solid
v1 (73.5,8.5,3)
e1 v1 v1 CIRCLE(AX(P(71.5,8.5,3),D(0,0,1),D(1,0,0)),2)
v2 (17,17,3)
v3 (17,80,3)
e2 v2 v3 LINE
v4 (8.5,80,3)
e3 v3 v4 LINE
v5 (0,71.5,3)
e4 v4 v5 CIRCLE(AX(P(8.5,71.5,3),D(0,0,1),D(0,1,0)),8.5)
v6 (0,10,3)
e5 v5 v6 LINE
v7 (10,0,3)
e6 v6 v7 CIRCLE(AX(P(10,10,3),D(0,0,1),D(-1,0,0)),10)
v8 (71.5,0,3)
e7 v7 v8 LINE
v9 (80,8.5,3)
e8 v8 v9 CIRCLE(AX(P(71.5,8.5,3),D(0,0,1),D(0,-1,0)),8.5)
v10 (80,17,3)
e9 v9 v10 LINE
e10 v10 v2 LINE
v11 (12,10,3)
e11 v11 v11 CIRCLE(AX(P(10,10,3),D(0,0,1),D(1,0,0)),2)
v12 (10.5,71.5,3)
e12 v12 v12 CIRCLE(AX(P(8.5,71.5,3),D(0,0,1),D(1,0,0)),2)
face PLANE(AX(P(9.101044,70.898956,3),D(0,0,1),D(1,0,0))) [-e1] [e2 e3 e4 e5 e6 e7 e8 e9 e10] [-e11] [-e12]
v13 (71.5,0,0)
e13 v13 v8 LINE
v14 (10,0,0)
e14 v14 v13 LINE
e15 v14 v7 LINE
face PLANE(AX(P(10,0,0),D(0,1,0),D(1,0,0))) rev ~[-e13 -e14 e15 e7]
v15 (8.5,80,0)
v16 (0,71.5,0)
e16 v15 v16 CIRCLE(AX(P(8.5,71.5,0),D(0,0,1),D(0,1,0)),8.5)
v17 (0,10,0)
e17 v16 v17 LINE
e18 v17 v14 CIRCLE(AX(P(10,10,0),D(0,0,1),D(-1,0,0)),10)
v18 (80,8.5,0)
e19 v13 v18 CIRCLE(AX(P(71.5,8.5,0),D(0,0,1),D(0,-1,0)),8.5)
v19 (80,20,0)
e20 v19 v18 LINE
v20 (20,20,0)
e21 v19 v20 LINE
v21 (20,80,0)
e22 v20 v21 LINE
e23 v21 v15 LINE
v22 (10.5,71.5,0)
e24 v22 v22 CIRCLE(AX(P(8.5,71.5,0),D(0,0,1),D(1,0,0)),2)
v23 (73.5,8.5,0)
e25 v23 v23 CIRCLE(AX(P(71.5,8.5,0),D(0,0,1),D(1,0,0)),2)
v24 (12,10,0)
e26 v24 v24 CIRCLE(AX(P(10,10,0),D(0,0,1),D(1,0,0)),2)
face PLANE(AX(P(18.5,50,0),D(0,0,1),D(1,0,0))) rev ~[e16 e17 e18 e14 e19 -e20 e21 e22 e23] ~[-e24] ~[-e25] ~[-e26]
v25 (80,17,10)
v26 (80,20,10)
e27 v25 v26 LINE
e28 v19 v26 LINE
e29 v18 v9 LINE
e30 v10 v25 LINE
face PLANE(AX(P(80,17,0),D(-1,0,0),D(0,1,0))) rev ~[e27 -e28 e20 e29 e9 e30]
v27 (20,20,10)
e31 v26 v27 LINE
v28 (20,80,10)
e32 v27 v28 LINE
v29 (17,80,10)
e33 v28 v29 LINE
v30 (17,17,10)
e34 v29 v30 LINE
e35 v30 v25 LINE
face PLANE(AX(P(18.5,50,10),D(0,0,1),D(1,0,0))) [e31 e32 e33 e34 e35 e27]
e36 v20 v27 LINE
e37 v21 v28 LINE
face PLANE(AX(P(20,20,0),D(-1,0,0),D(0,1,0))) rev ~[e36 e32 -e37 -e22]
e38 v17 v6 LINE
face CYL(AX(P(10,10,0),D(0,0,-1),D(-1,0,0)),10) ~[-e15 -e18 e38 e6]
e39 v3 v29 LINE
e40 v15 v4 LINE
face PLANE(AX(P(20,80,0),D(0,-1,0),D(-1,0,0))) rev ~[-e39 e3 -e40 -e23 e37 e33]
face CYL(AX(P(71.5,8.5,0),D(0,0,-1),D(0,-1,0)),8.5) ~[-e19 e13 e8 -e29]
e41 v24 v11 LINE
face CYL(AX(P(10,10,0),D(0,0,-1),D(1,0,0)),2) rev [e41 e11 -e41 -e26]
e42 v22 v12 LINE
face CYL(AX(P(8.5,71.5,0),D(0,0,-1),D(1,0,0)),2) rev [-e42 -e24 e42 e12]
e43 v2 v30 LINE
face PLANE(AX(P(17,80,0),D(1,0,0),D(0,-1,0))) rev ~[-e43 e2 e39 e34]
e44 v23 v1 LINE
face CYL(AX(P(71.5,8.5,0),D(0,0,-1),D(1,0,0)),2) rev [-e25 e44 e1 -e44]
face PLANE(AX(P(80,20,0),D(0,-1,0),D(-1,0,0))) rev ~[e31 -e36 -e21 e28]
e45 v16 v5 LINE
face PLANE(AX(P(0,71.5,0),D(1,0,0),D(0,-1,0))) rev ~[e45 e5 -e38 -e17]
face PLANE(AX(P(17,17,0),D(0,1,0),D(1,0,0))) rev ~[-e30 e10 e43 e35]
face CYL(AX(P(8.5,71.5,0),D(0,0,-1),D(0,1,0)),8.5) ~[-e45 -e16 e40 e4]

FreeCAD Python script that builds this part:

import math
import FreeCAD as App
import Part
import Sketcher

doc = App.newDocument("Part")
body = doc.addObject("PartDesign::Body", "Body")

# Sketch on XY plane
sketch1 = doc.addObject("Sketcher::SketchObject", "Sketch")
body.addObject(sketch1)
sketch1.AttachmentSupport = (doc.XY_Plane, [""])
sketch1.MapMode = "FlatFace"
sketch1.addGeometry([
    Part.LineSegment(App.Vector(0, 71.5, 0), App.Vector(0, 10, 0)),  # 0
    Part.ArcOfCircle(Part.Circle(App.Vector(10, 10, 0), App.Vector(0, 0, 1), 10), math.radians(180), math.radians(270)),  # 1
    Part.LineSegment(App.Vector(10, 0, 0), App.Vector(71.5, 0, 0)),  # 2
    Part.ArcOfCircle(Part.Circle(App.Vector(71.5, 8.5, 0), App.Vector(0, 0, 1), 8.5), math.radians(-90), math.radians(0)),  # 3
    Part.LineSegment(App.Vector(80, 8.5, 0), App.Vector(80, 17, 0)),  # 4
    Part.LineSegment(App.Vector(80, 17, 0), App.Vector(17, 17, 0)),  # 5
    Part.LineSegment(App.Vector(17, 17, 0), App.Vector(17, 80, 0)),  # 6
    Part.LineSegment(App.Vector(17, 80, 0), App.Vector(8.5, 80, 0)),  # 7
    Part.ArcOfCircle(Part.Circle(App.Vector(8.5, 71.5, 0), App.Vector(0, 0, 1), 8.5), math.radians(90), math.radians(180)),  # 8
    Part.Circle(App.Vector(10, 10, 0), App.Vector(0, 0, 1), 2),  # 9
    Part.Circle(App.Vector(71.5, 8.5, 0), App.Vector(0, 0, 1), 2),  # 10
    Part.Circle(App.Vector(8.5, 71.5, 0), App.Vector(0, 0, 1), 2),  # 11
], False)
sketch1.addConstraint([
    Sketcher.Constraint("Tangent", 0, 2, 1, 1),
    Sketcher.Constraint("Tangent", 1, 2, 2, 1),
    Sketcher.Constraint("Tangent", 2, 2, 3, 1),
    Sketcher.Constraint("Tangent", 3, 2, 4, 1),
    Sketcher.Constraint("Coincident", 4, 2, 5, 1),
    Sketcher.Constraint("Coincident", 5, 2, 6, 1),
    Sketcher.Constraint("Coincident", 6, 2, 7, 1),
    Sketcher.Constraint("Tangent", 7, 2, 8, 1),
    Sketcher.Constraint("Tangent", 8, 2, 0, 1),
    Sketcher.Constraint("Vertical", 0),
    Sketcher.Constraint("Horizontal", 2),
    Sketcher.Constraint("Vertical", 4),
    Sketcher.Constraint("Horizontal", 5),
    Sketcher.Constraint("Vertical", 6),
    Sketcher.Constraint("Horizontal", 7),
    Sketcher.Constraint("Coincident", 9, 3, 1, 3),
    Sketcher.Constraint("Coincident", 10, 3, 3, 3),
    Sketcher.Constraint("Coincident", 11, 3, 8, 3),
    Sketcher.Constraint("Equal", 3, 8),
    Sketcher.Constraint("Equal", 9, 10),
    Sketcher.Constraint("Equal", 10, 11),
    Sketcher.Constraint("PointOnObject", 0, 2, -2),
    Sketcher.Constraint("PointOnObject", 1, 2, -1),
    Sketcher.Constraint("Equal", 2, 0),
    Sketcher.Constraint("Equal", 7, 4),
    Sketcher.Constraint("Diameter", 9, 4.0),
    Sketcher.Constraint("Radius", 1, 10.0),
    Sketcher.Constraint("Radius", 3, 8.5),
    Sketcher.Constraint("DistanceX", 5, 2, 5, 1, 63.0),
    Sketcher.Constraint("DistanceX", 2, 1, 2, 2, 61.5),
])
pad1 = doc.addObject("PartDesign::Pad", "Pad")
body.addObject(pad1)
pad1.Profile = sketch1
pad1.Length = 3

# Sketch on XY plane
sketch2 = doc.addObject("Sketcher::SketchObject", "Sketch001")
body.addObject(sketch2)
sketch2.AttachmentSupport = (doc.XY_Plane, [""])
sketch2.MapMode = "FlatFace"
sketch2.addGeometry([
    Part.LineSegment(App.Vector(20, 20, 0), App.Vector(20, 80, 0)),  # 0
    Part.LineSegment(App.Vector(20, 80, 0), App.Vector(17, 80, 0)),  # 1
    Part.LineSegment(App.Vector(17, 80, 0), App.Vector(17, 17, 0)),  # 2
    Part.LineSegment(App.Vector(17, 17, 0), App.Vector(80, 17, 0)),  # 3
    Part.LineSegment(App.Vector(80, 17, 0), App.Vector(80, 20, 0)),  # 4
    Part.LineSegment(App.Vector(80, 20, 0), App.Vector(20, 20, 0)),  # 5
], False)
sketch2.addConstraint([
    Sketcher.Constraint("Coincident", 0, 2, 1, 1),
    Sketcher.Constraint("Coincident", 1, 2, 2, 1),
    Sketcher.Constraint("Coincident", 2, 2, 3, 1),
    Sketcher.Constraint("Coincident", 3, 2, 4, 1),
    Sketcher.Constraint("Coincident", 4, 2, 5, 1),
    Sketcher.Constraint("Coincident", 5, 2, 0, 1),
    Sketcher.Constraint("Vertical", 0),
    Sketcher.Constraint("Horizontal", 1),
    Sketcher.Constraint("Vertical", 2),
    Sketcher.Constraint("Horizontal", 3),
    Sketcher.Constraint("Vertical", 4),
    Sketcher.Constraint("Horizontal", 5),
    Sketcher.Constraint("Equal", 5, 0),
    Sketcher.Constraint("Equal", 3, 2),
    Sketcher.Constraint("DistanceX", 1, 2, 1, 1, 3.0),
    Sketcher.Constraint("DistanceX", 3, 1, 3, 2, 63.0),
    Sketcher.Constraint("DistanceX", -1, 1, 0, 2, 20.0),
    Sketcher.Constraint("DistanceY", -1, 1, 0, 2, 80.0),
])
pad2 = doc.addObject("PartDesign::Pad", "Pad001")
body.addObject(pad2)
pad2.Profile = sketch2
pad2.Length = 10

doc.recompute()
